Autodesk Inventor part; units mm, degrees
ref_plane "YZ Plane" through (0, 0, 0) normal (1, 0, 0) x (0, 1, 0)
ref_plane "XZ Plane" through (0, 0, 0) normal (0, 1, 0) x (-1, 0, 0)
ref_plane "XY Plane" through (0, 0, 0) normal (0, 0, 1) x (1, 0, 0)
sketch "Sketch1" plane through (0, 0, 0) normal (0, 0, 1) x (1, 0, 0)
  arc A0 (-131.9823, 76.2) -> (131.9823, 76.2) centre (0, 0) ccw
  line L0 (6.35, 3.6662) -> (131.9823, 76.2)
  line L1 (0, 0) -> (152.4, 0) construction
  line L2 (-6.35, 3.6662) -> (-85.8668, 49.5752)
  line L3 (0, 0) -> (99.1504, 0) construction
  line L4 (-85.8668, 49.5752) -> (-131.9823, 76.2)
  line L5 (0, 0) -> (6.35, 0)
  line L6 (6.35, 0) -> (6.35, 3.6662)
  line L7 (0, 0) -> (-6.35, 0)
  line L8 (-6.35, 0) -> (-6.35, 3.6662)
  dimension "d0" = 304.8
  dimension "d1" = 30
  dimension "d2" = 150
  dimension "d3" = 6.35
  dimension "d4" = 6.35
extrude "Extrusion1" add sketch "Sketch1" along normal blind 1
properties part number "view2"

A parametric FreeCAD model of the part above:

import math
import FreeCAD as App
import Part
import Sketcher

V = App.Vector
Q = App.Units.Quantity

doc = App.newDocument("Part")
body = doc.addObject("PartDesign::Body", "Body")

sketch1 = body.newObject("Sketcher::SketchObject", "Sketch")
sketch1.AttachmentSupport = (doc.getObject("XY_Plane"), [""])
sketch1.MapMode = "FlatFace"
sketch1.addGeometry(Part.LineSegment(V(-85.9, 49.6, 0), V(-132, 76.2, 0)), False)
sketch1.addGeometry(Part.ArcOfCircle(Part.Circle(V(0, 0, 0), V(0, 0, 1), 152.4), math.radians(150), math.radians(390)), False)
sketch1.addGeometry(Part.LineSegment(V(132, 76.2, 0), V(6.3, 3.7, 0)), False)
sketch1.addGeometry(Part.LineSegment(V(6.3, 3.7, 0), V(6.3, 0, 0)), False)
sketch1.addGeometry(Part.LineSegment(V(6.3, 0, 0), V(-6.3, 0, 0)), False)
sketch1.addGeometry(Part.LineSegment(V(-6.3, 0, 0), V(-6.3, 3.7, 0)), False)
sketch1.addGeometry(Part.LineSegment(V(-6.3, 3.7, 0), V(-85.9, 49.6, 0)), False)
sketch1.addConstraint(Sketcher.Constraint("Coincident", 0, 2, 1, 1))
sketch1.addConstraint(Sketcher.Constraint("Coincident", 1, 2, 2, 1))
sketch1.addConstraint(Sketcher.Constraint("Coincident", 2, 2, 3, 1))
sketch1.addConstraint(Sketcher.Constraint("Coincident", 3, 2, 4, 1))
sketch1.addConstraint(Sketcher.Constraint("Coincident", 4, 2, 5, 1))
sketch1.addConstraint(Sketcher.Constraint("Coincident", 5, 2, 6, 1))
sketch1.addConstraint(Sketcher.Constraint("Coincident", 6, 2, 0, 1))
sketch1.addConstraint(Sketcher.Constraint("Vertical", 3))
sketch1.addConstraint(Sketcher.Constraint("Horizontal", 4))
sketch1.addConstraint(Sketcher.Constraint("Vertical", 5))
sketch1.addConstraint(Sketcher.Constraint("Coincident", 1, 3, -1, 1))
sketch1.addConstraint(Sketcher.Constraint("Symmetric", 3, 2, 4, 2, -1, 1))
sketch1.addConstraint(Sketcher.Constraint("Parallel", 0, 6))
sketch1.addConstraint(Sketcher.Constraint("Horizontal", 0, 2, 1, 2))
sketch1.addConstraint(Sketcher.Constraint("Horizontal", 2, 2, 5, 2))
sketch1.addConstraint(Sketcher.Constraint("Radius", 1, Q("6 in")))
sketch1.addConstraint(Sketcher.Constraint("Angle", 0, Q("150 deg")))
sketch1.addConstraint(Sketcher.Constraint("DistanceX", -1, 1, 2, 2, Q("0.25 in")))
sketch1.addConstraint(Sketcher.Constraint("DistanceY", -1, 1, 0, 2, Q("3 in")))
sketch1.addConstraint(Sketcher.Constraint("Distance", 0, Q("53.2496 mm")))
pad1 = body.newObject("PartDesign::Pad", "Pad")
pad1.Profile = sketch1
pad1.Length = 1

doc.recompute()
